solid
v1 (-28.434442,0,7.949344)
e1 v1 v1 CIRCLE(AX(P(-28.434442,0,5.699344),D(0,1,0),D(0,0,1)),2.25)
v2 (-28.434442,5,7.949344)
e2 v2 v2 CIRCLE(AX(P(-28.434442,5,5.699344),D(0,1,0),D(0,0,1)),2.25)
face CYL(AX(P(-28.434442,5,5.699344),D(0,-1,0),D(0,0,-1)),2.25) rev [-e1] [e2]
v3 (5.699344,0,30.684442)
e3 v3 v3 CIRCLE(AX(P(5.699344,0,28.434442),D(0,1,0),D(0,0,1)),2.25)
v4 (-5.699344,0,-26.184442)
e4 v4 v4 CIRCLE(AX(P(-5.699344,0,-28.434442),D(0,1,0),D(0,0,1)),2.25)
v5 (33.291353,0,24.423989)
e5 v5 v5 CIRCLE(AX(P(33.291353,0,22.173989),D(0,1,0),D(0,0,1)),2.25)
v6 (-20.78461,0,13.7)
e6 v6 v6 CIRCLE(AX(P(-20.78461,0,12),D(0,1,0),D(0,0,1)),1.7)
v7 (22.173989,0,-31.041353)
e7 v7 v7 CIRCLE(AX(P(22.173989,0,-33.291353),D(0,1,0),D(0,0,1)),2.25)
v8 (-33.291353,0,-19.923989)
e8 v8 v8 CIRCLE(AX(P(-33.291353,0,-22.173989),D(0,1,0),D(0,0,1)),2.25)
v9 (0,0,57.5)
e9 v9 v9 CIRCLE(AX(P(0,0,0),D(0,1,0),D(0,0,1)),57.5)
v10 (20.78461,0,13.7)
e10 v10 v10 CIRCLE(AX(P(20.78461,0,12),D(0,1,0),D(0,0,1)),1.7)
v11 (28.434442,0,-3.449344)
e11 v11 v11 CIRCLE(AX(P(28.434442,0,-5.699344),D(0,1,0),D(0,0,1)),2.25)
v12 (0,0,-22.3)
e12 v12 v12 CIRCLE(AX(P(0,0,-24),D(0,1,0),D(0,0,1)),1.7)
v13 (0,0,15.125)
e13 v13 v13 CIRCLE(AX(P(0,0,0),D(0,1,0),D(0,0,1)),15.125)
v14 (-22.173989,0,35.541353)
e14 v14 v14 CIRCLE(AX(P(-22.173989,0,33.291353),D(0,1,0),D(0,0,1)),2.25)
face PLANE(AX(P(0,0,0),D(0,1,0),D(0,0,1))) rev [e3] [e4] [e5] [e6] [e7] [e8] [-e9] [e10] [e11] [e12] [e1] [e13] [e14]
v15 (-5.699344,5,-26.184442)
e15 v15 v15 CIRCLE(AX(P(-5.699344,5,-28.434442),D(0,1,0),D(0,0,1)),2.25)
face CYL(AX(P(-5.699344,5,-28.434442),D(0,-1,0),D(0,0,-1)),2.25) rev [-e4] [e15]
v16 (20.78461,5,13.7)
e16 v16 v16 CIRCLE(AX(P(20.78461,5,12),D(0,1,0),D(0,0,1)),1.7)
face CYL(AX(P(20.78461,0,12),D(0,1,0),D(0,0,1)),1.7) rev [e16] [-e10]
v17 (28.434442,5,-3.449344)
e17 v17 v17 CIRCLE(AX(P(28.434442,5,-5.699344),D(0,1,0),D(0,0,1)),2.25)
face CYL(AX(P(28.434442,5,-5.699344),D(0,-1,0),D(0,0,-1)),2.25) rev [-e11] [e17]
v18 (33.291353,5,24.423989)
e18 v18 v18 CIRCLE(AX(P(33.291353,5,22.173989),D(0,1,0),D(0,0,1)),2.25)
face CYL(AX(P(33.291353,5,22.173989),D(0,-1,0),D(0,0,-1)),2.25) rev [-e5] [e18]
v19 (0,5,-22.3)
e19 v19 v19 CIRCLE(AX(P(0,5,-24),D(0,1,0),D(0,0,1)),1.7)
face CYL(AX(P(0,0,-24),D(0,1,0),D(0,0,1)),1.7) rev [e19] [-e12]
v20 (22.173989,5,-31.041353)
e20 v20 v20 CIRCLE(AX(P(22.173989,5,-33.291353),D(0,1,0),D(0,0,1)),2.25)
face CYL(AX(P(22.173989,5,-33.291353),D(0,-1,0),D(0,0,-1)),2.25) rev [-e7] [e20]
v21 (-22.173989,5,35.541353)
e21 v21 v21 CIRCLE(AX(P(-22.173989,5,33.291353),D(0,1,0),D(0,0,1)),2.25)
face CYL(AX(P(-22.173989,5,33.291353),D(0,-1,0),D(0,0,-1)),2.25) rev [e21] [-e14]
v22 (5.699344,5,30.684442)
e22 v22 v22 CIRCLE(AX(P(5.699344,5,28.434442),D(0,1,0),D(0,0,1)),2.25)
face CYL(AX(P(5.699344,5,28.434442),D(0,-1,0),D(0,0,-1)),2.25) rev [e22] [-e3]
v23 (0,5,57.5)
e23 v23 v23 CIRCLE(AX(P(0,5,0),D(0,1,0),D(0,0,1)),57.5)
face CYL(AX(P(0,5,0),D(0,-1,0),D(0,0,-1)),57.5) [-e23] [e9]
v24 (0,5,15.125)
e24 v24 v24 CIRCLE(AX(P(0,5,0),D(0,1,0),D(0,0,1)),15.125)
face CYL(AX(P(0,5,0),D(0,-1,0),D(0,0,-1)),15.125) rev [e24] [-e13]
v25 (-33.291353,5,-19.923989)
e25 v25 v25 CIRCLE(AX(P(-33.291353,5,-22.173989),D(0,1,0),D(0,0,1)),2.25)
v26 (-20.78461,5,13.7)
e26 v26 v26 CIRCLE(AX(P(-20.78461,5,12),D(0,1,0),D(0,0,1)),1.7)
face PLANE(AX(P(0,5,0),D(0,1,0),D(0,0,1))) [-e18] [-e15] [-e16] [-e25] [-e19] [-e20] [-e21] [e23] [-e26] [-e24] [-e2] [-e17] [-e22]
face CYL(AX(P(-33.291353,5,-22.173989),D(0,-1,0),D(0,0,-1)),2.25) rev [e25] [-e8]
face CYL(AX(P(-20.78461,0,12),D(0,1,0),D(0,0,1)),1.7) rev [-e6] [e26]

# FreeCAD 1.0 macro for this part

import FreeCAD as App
import Part
import Sketcher
Q = App.Units.Quantity

doc = App.newDocument("Part")
body = doc.addObject("PartDesign::Body", "Body")

# Sketch on XZ plane
sketch1 = body.newObject("Sketcher::SketchObject", "Sketch")
sketch1.AttachmentSupport = (doc.getObject("XZ_Plane"), [""])
sketch1.MapMode = "FlatFace"
sketch1.addGeometry(Part.Circle(App.Vector(0, 0, 0), App.Vector(0, 0, 1), 57.5), False)
sketch1.addGeometry(Part.Circle(App.Vector(-33.291353, -22.173989, 0), App.Vector(0, 0, 1), 2.25), False)
sketch1.addGeometry(Part.Circle(App.Vector(-5.699344, -28.434442, 0), App.Vector(0, 0, 1), 2.25), False)
sketch1.addGeometry(Part.Circle(App.Vector(-28.434442, 5.699344, 0), App.Vector(0, 0, 1), 2.25), False)
sketch1.addGeometry(Part.Circle(App.Vector(-22.173989, 33.291353, 0), App.Vector(0, 0, 1), 2.25), False)
sketch1.addGeometry(Part.Circle(App.Vector(22.173989, -33.291353, 0), App.Vector(0, 0, 1), 2.25), False)
sketch1.addGeometry(Part.Circle(App.Vector(28.434442, -5.699344, 0), App.Vector(0, 0, 1), 2.25), False)
sketch1.addGeometry(Part.Circle(App.Vector(0, 0, 0), App.Vector(0, 0, 1), 15.125), False)
sketch1.addGeometry(Part.Circle(App.Vector(5.699344, 28.434442, 0), App.Vector(0, 0, 1), 2.25), False)
sketch1.addGeometry(Part.Circle(App.Vector(33.291353, 22.173989, 0), App.Vector(0, 0, 1), 2.25), False)
sketch1.addConstraint(Sketcher.Constraint("Coincident", 0, 3, -1, 1))
sketch1.addConstraint(Sketcher.Constraint("Coincident", 7, 3, -1, 1))
sketch1.addConstraint(Sketcher.Constraint("Equal", 1, 2))
sketch1.addConstraint(Sketcher.Constraint("Equal", 2, 3))
sketch1.addConstraint(Sketcher.Constraint("Equal", 3, 4))
sketch1.addConstraint(Sketcher.Constraint("Equal", 4, 5))
sketch1.addConstraint(Sketcher.Constraint("Equal", 5, 6))
sketch1.addConstraint(Sketcher.Constraint("Equal", 6, 8))
sketch1.addConstraint(Sketcher.Constraint("Equal", 8, 9))
sketch1.addConstraint(Sketcher.Constraint("Symmetric", 4, 3, 5, 3, -1, 1))
sketch1.addConstraint(Sketcher.Constraint("Symmetric", 3, 3, 6, 3, -1, 1))
sketch1.addConstraint(Sketcher.Constraint("Symmetric", 2, 3, 8, 3, -1, 1))
sketch1.addConstraint(Sketcher.Constraint("Symmetric", 1, 3, 9, 3, -1, 1))
sketch1.addConstraint(Sketcher.Constraint("Diameter", 0, Q("115 mm")))
sketch1.addConstraint(Sketcher.Constraint("Diameter", 1, Q("4.5 mm")))
sketch1.addConstraint(Sketcher.Constraint("Diameter", 7, Q("30.25 mm")))
sketch1.addConstraint(Sketcher.Constraint("DistanceX", 3, 3, 2, 3, Q("22.735098 mm")))
sketch1.addConstraint(Sketcher.Constraint("DistanceY", 2, 3, 6, 3, Q("22.735098 mm")))
sketch1.addConstraint(Sketcher.Constraint("DistanceY", 1, 3, -1, 1, Q("22.173989 mm")))
sketch1.addConstraint(Sketcher.Constraint("DistanceY", 2, 3, -1, 1, Q("28.434442 mm")))
sketch1.addConstraint(Sketcher.Constraint("DistanceX", 3, 3, -1, 1, Q("28.434442 mm")))
sketch1.addConstraint(Sketcher.Constraint("DistanceX", 4, 3, -1, 1, Q("22.173989 mm")))
sketch1.addConstraint(Sketcher.Constraint("DistanceX", 1, 3, 2, 3, Q("27.59201 mm")))
sketch1.addConstraint(Sketcher.Constraint("DistanceY", 3, 3, 4, 3, Q("27.59201 mm")))
pad1 = body.newObject("PartDesign::Pad", "Pad")
pad1.Profile = sketch1
pad1.Length = 5
pad1.Reversed = True

# Sketch on XZ plane
sketch2 = body.newObject("Sketcher::SketchObject", "Sketch001")
sketch2.AttachmentSupport = (doc.getObject("XZ_Plane"), [""])
sketch2.MapMode = "FlatFace"
sketch2.AttachmentOffset = App.Placement(App.Vector(0, 0, -5), App.Rotation())
sketch2.addGeometry(Part.Circle(App.Vector(0, -24, 0), App.Vector(0, 0, 1), 1.7), False)
sketch2.addGeometry(Part.Circle(App.Vector(20.78461, 12, 0), App.Vector(0, 0, 1), 1.7), False)
sketch2.addGeometry(Part.Circle(App.Vector(-20.78461, 12, 0), App.Vector(0, 0, 1), 1.7), False)
sketch2.addConstraint(Sketcher.Constraint("Equal", 0, 1))
sketch2.addConstraint(Sketcher.Constraint("Equal", 1, 2))
sketch2.addConstraint(Sketcher.Constraint("Symmetric", 1, 3, 2, 3, -2))
sketch2.addConstraint(Sketcher.Constraint("PointOnObject", 0, 3, -2))
sketch2.addConstraint(Sketcher.Constraint("Diameter", 0, Q("3.4 mm")))
sketch2.addConstraint(Sketcher.Constraint("DistanceY", 0, 3, -1, 1, Q("24 mm")))
sketch2.addConstraint(Sketcher.Constraint("DistanceY", -1, 1, 1, 3, Q("12 mm")))
sketch2.addConstraint(Sketcher.Constraint("DistanceX", -1, 1, 1, 3, Q("20.78461 mm")))
pocket1 = body.newObject("PartDesign::Pocket", "Pocket")
pocket1.Profile = sketch2
pocket1.Type = "ThroughAll"
pocket1.Reversed = True

doc.recompute()
